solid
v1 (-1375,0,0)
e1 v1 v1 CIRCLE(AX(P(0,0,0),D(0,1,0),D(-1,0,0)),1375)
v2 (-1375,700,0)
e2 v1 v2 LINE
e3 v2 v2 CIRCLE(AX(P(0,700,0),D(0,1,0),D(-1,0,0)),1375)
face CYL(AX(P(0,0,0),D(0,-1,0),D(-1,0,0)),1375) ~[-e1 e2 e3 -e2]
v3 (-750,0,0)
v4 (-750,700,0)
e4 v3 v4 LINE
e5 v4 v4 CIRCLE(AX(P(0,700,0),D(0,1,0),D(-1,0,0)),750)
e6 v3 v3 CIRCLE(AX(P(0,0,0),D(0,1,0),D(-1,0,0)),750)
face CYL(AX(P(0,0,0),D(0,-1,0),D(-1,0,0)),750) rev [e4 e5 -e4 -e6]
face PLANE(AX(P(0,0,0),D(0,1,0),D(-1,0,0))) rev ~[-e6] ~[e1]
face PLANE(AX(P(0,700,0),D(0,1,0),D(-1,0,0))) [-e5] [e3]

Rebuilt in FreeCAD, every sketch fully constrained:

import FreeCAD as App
import Part
import Sketcher

V = App.Vector

doc = App.newDocument("Part")
body = doc.addObject("PartDesign::Body", "Body")

# Sketch on XZ plane
sketch1 = doc.addObject("Sketcher::SketchObject", "Sketch")
body.addObject(sketch1)
sketch1.AttachmentSupport = (doc.XZ_Plane, [""])
sketch1.MapMode = "FlatFace"
sketch1.addGeometry([
    Part.Circle(V(0, 0, 0), V(0, 0, 1), 1375),
    Part.Circle(V(0, 0, 0), V(0, 0, 1), 750),
], False)
sketch1.addConstraint([
    Sketcher.Constraint("Coincident", 0, 3, -1, 1),
    Sketcher.Constraint("Coincident", 1, 3, -1, 1),
    Sketcher.Constraint("Diameter", 0, 2750.0),
    Sketcher.Constraint("Diameter", 1, 1500.0),
])
pad1 = doc.addObject("PartDesign::Pad", "Pad")
body.addObject(pad1)
pad1.Profile = sketch1
pad1.Length = 700
pad1.Reversed = True

doc.recompute()
